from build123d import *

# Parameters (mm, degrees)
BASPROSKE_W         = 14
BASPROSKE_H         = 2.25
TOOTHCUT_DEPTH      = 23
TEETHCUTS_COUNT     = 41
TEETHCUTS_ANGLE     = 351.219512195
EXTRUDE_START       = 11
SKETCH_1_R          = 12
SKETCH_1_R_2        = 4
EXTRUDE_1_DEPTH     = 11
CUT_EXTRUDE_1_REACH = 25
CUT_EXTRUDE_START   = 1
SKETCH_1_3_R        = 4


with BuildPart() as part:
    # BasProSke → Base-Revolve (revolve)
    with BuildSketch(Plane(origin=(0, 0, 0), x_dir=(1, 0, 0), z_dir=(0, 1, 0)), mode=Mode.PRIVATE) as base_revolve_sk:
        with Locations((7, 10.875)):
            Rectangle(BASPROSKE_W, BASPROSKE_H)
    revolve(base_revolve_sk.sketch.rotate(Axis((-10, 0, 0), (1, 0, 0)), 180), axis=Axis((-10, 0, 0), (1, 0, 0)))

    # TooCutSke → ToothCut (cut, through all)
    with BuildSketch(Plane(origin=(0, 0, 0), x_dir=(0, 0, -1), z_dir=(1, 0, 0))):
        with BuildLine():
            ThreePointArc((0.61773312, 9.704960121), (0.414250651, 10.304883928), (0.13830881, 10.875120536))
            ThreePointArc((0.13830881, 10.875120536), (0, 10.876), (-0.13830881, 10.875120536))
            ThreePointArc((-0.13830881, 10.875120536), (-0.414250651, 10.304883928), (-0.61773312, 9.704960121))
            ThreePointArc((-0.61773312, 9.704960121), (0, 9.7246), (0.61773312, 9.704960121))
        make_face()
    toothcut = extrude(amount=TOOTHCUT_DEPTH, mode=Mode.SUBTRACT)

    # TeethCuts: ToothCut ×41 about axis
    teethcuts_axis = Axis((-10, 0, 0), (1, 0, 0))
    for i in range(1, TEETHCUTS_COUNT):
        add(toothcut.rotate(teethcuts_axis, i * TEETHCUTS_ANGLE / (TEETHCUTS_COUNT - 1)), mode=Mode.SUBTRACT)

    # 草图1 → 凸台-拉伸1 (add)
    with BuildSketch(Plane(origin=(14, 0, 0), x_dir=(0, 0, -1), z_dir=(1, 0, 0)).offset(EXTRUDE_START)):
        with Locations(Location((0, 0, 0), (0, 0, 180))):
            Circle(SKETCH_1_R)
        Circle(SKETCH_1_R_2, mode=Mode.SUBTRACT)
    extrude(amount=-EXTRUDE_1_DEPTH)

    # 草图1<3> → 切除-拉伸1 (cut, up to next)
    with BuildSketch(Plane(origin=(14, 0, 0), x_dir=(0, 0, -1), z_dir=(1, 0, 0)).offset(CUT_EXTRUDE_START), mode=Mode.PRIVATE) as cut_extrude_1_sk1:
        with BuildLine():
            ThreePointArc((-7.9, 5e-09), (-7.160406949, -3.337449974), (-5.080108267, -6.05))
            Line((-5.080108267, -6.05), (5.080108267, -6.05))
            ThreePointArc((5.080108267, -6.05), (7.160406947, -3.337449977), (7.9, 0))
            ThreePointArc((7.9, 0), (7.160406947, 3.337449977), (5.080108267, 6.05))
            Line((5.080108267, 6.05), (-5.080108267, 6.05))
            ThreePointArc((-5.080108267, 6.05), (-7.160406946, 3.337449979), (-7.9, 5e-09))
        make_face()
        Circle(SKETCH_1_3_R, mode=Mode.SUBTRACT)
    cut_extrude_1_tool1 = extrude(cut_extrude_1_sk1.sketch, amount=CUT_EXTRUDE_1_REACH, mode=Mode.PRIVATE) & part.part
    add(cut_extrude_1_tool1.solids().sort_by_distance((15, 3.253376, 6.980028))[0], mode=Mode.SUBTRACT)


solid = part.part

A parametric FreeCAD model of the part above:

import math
import FreeCAD as App
import Part
import Sketcher

V = App.Vector


def add_polygon(sketch, points):
    """Adds a closed chain of lines whose ends are joined by coincident constraints."""
    first, n = sketch.GeometryCount, len(points)
    for a, b in zip(points, points[1:] + points[:1]):
        sketch.addGeometry(Part.LineSegment(App.Vector(*a, 0), App.Vector(*b, 0)), False)
    for i in range(n):
        sketch.addConstraint(Sketcher.Constraint("Coincident", first + i, 2, first + (i + 1) % n, 1))

doc = App.newDocument("Part")
params = doc.addObject("Spreadsheet::Sheet", "Params")
for row, (alias, value) in enumerate([
    ("sketch1_width", "14 mm"),
    ("sketch1_height", "2.25 mm"),
    ("revolution_angle", "360 deg"),
    ("sketch3_diameter", "24 mm"),
    ("sketch3_diameter2", "8 mm"),
    ("pad1_length", "11 mm"),
    ("sketch4_diameter", "8 mm"),
    ("sketch4_radius", "7.9 mm"),
    ("pocket2_length", "10 mm"),
], start=1):
    params.set(f"A{row}", alias)
    params.set(f"B{row}", "=" + value)
    params.setAlias(f"B{row}", alias)

body = doc.addObject("PartDesign::Body", "Body")

sketch1 = doc.addObject("Sketcher::SketchObject", "Sketch")
body.addObject(sketch1)
sketch1.AttachmentSupport = (doc.XZ_Plane, [""])
sketch1.MapMode = "FlatFace"
add_polygon(sketch1, [(0, -12), (0, -9.8), (14, -9.8), (14, -12)])
sketch1.addConstraint(Sketcher.Constraint("Vertical", 0))
sketch1.addConstraint(Sketcher.Constraint("Horizontal", 1))
sketch1.addConstraint(Sketcher.Constraint("Vertical", 2))
sketch1.addConstraint(Sketcher.Constraint("Horizontal", 3))
sketch1.addConstraint(Sketcher.Constraint("PointOnObject", 0, 2, -2))
sketch1.addConstraint(Sketcher.Constraint("DistanceX", 1, 1, 1, 2, 14.0))
sketch1.addConstraint(Sketcher.Constraint("DistanceY", 2, 2, -1, 1, 12.0))
sketch1.addConstraint(Sketcher.Constraint("DistanceY", 0, 1, 0, 2, 2.25))
sketch1.setExpression("Constraints[9]", "Params.sketch1_width")
sketch1.setExpression("Constraints[11]", "Params.sketch1_height")
revolution = doc.addObject("PartDesign::Revolution", "Revolution")
body.addObject(revolution)
revolution.Profile = sketch1
revolution.ReferenceAxis = (sketch1, ["H_Axis"])
revolution.setExpression("Angle", "Params.revolution_angle")

sketch2 = doc.addObject("Sketcher::SketchObject", "Sketch001")
body.addObject(sketch2)
sketch2.AttachmentSupport = (doc.YZ_Plane, [""])
sketch2.MapMode = "FlatFace"
sketch2.addGeometry(Part.ArcOfCircle(Part.Circle(V(8.36, 4.33, 0), V(0, 0, 1), 5.12), math.radians(-74.81), math.radians(-60.63)), False)
sketch2.addGeometry(Part.ArcOfCircle(Part.Circle(V(0, 0, 0), V(0, 0, 1), 10.88), math.radians(-0.73), math.radians(0.73)), False)
sketch2.addGeometry(Part.ArcOfCircle(Part.Circle(V(8.36, -4.33, 0), V(0, 0, 1), 5.12), math.radians(60.63), math.radians(74.81)), False)
sketch2.addGeometry(Part.ArcOfCircle(Part.Circle(V(0, 0, 0), V(0, 0, 1), 9.72), math.radians(-3.64), math.radians(3.64)), False)
sketch2.addConstraint(Sketcher.Constraint("Coincident", 0, 2, 1, 1))
sketch2.addConstraint(Sketcher.Constraint("Coincident", 1, 2, 2, 1))
sketch2.addConstraint(Sketcher.Constraint("Coincident", 2, 2, 3, 2))
sketch2.addConstraint(Sketcher.Constraint("Coincident", 3, 1, 0, 1))
sketch2.addConstraint(Sketcher.Constraint("Coincident", 1, 3, -1, 1))
sketch2.addConstraint(Sketcher.Constraint("Coincident", 3, 3, -1, 1))
sketch2.addConstraint(Sketcher.Constraint("Equal", 0, 2))
sketch2.addConstraint(Sketcher.Constraint("Symmetric", 0, 3, 2, 3, -1))
sketch2.addConstraint(Sketcher.Constraint("Radius", 0, 5.125))
sketch2.addConstraint(Sketcher.Constraint("Radius", 1, 10.876))
sketch2.addConstraint(Sketcher.Constraint("Radius", 3, 9.7246))
sketch2.addConstraint(Sketcher.Constraint("DistanceY", 2, 3, 0, 3, 8.656302))
sketch2.addConstraint(Sketcher.Constraint("DistanceY", 0, 2, -1, 1, 0.138309))
pocket1 = doc.addObject("PartDesign::Pocket", "Pocket")
body.addObject(pocket1)
pocket1.Profile = sketch2
pocket1.Type = "ThroughAll"
pocket1.Reversed = True
doc.recompute()

polarpattern = doc.addObject("PartDesign::PolarPattern", "PolarPattern")
body.addObject(polarpattern)
polarpattern.Originals = [pocket1]
polarpattern.Axis = (doc.X_Axis, [""])
polarpattern.Angle = 360
polarpattern.Occurrences = 41
body.Tip = polarpattern

sketch3 = doc.addObject("Sketcher::SketchObject", "Sketch002")
body.addObject(sketch3)
sketch3.AttachmentSupport = (doc.YZ_Plane, [""])
sketch3.MapMode = "FlatFace"
sketch3.AttachmentOffset = App.Placement(V(0, 0, 25), App.Rotation())
sketch3.addGeometry(Part.Circle(V(0, 0, 0), V(0, 0, 1), 12), False)
sketch3.addGeometry(Part.Circle(V(0, 0, 0), V(0, 0, 1), 4), False)
sketch3.addConstraint(Sketcher.Constraint("Coincident", 0, 3, -1, 1))
sketch3.addConstraint(Sketcher.Constraint("Coincident", 1, 3, -1, 1))
sketch3.addConstraint(Sketcher.Constraint("Diameter", 0, 24.0))
sketch3.addConstraint(Sketcher.Constraint("Diameter", 1, 8.0))
sketch3.setExpression("Constraints[2]", "Params.sketch3_diameter")
sketch3.setExpression("Constraints[3]", "Params.sketch3_diameter2")
pad1 = doc.addObject("PartDesign::Pad", "Pad")
body.addObject(pad1)
pad1.Profile = sketch3
pad1.setExpression("Length", "Params.pad1_length")
pad1.Reversed = True

sketch4 = doc.addObject("Sketcher::SketchObject", "Sketch003")
body.addObject(sketch4)
sketch4.AttachmentSupport = (doc.YZ_Plane, [""])
sketch4.MapMode = "FlatFace"
sketch4.AttachmentOffset = App.Placement(V(0, 0, 15), App.Rotation())
sketch4.addGeometry(Part.ArcOfCircle(Part.Circle(V(0, 0, 0), V(0, 0, 1), 7.9), math.radians(90), math.radians(140)), False)
sketch4.addGeometry(Part.LineSegment(V(-6, 5.1, 0), V(-6, -5.1, 0)), False)
sketch4.addGeometry(Part.ArcOfCircle(Part.Circle(V(0, 0, 0), V(0, 0, 1), 7.9), math.radians(-140), math.radians(-90)), False)
sketch4.addGeometry(Part.ArcOfCircle(Part.Circle(V(0, 0, 0), V(0, 0, 1), 7.9), math.radians(-90), math.radians(-40)), False)
sketch4.addGeometry(Part.LineSegment(V(6, -5.1, 0), V(6, 5.1, 0)), False)
sketch4.addGeometry(Part.ArcOfCircle(Part.Circle(V(0, 0, 0), V(0, 0, 1), 7.9), math.radians(40), math.radians(90)), False)
sketch4.addGeometry(Part.Circle(V(0, 0, 0), V(0, 0, 1), 4), False)
sketch4.addConstraint(Sketcher.Constraint("Coincident", 0, 2, 1, 1))
sketch4.addConstraint(Sketcher.Constraint("Coincident", 1, 2, 2, 1))
sketch4.addConstraint(Sketcher.Constraint("Tangent", 2, 2, 3, 1))
sketch4.addConstraint(Sketcher.Constraint("Coincident", 3, 2, 4, 1))
sketch4.addConstraint(Sketcher.Constraint("Coincident", 4, 2, 5, 1))
sketch4.addConstraint(Sketcher.Constraint("Tangent", 5, 2, 0, 1))
sketch4.addConstraint(Sketcher.Constraint("Vertical", 1))
sketch4.addConstraint(Sketcher.Constraint("Vertical", 4))
sketch4.addConstraint(Sketcher.Constraint("Coincident", 0, 3, -1, 1))
sketch4.addConstraint(Sketcher.Constraint("Coincident", 2, 3, -1, 1))
sketch4.addConstraint(Sketcher.Constraint("Coincident", 6, 3, -1, 1))
sketch4.addConstraint(Sketcher.Constraint("Equal", 0, 2))
sketch4.addConstraint(Sketcher.Constraint("Equal", 2, 3))
sketch4.addConstraint(Sketcher.Constraint("Equal", 3, 5))
sketch4.addConstraint(Sketcher.Constraint("PointOnObject", 2, 2, -2))
sketch4.addConstraint(Sketcher.Constraint("PointOnObject", 5, 2, -2))
sketch4.addConstraint(Sketcher.Constraint("Horizontal", 1, 2, 3, 2))
sketch4.addConstraint(Sketcher.Constraint("Diameter", 6, 8.0))
sketch4.addConstraint(Sketcher.Constraint("Radius", 0, 7.9))
sketch4.addConstraint(Sketcher.Constraint("DistanceX", 0, 2, -1, 1, 6.05))
sketch4.setExpression("Constraints[17]", "Params.sketch4_diameter")
sketch4.setExpression("Constraints[18]", "Params.sketch4_radius")
pocket2 = doc.addObject("PartDesign::Pocket", "Pocket001")
body.addObject(pocket2)
pocket2.Profile = sketch4
pocket2.setExpression("Length", "Params.pocket2_length")
pocket2.Reversed = True

doc.recompute()
